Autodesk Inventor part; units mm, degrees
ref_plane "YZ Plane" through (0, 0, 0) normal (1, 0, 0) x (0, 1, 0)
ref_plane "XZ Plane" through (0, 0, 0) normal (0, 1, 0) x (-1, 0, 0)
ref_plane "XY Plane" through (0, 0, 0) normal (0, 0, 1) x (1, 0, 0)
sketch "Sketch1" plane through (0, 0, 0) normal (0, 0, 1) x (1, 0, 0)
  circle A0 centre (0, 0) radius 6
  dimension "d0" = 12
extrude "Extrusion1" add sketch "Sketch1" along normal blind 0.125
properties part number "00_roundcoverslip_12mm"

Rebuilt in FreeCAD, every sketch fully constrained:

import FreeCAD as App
import Part
import Sketcher

V = App.Vector

doc = App.newDocument("Part")
body = doc.addObject("PartDesign::Body", "Body")

# Sketch on XY plane
sketch1 = doc.addObject("Sketcher::SketchObject", "Sketch")
body.addObject(sketch1)
sketch1.AttachmentSupport = (doc.XY_Plane, [""])
sketch1.MapMode = "FlatFace"
sketch1.addGeometry(Part.Circle(V(0, 0, 0), V(0, 0, 1), 6), False)
sketch1.addConstraint([
    Sketcher.Constraint("Coincident", 0, 3, -1, 1),
    Sketcher.Constraint("Diameter", 0, 12.0),
])
pad1 = doc.addObject("PartDesign::Pad", "Pad")
body.addObject(pad1)
pad1.Profile = sketch1
pad1.Length = 0.125

doc.recompute()
